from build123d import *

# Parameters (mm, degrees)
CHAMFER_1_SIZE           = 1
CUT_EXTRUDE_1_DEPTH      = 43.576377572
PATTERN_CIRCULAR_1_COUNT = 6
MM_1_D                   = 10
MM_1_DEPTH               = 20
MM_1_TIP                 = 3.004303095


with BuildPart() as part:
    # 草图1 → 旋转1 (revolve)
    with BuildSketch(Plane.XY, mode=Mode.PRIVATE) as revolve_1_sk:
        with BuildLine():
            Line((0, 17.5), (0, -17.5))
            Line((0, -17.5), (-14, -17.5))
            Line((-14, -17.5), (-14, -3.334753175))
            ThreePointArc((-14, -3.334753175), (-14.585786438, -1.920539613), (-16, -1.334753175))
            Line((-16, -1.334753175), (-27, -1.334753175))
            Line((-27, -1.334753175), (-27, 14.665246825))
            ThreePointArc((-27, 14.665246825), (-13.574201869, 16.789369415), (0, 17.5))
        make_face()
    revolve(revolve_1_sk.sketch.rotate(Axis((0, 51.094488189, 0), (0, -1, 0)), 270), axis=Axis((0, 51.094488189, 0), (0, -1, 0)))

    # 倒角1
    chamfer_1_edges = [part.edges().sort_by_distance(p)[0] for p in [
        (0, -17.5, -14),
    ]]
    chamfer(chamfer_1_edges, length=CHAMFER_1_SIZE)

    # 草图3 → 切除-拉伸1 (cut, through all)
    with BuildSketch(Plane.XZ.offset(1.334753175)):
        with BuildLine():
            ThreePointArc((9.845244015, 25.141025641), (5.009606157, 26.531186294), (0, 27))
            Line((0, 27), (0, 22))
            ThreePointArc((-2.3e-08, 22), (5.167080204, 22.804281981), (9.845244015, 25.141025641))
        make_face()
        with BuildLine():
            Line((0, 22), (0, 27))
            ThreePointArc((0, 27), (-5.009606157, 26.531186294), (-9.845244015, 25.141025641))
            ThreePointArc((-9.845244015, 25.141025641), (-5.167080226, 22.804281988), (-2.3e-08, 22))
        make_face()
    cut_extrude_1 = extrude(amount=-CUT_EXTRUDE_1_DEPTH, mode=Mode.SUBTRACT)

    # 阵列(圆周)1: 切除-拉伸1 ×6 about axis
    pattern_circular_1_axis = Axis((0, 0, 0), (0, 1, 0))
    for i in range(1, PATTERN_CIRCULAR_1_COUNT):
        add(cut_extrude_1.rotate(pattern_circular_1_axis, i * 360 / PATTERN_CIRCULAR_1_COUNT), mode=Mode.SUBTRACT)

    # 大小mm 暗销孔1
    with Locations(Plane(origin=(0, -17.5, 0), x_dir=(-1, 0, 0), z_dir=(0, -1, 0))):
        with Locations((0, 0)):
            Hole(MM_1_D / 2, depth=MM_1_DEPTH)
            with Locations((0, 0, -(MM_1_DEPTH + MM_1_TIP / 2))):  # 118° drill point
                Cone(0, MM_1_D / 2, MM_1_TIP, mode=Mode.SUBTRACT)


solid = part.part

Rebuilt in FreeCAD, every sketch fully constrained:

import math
import FreeCAD as App
import Part
import Sketcher
from FreeCAD import Vector
Q = App.Units.Quantity


def edges_at(feature, points):
    """Names of the edges that pass closest to the given points."""
    edges = feature.Shape.Edges
    near = lambda p: min(range(len(edges)), key=lambda i: edges[i].distToShape(Part.Vertex(*p))[0])
    return sorted({f"Edge{near(p) + 1}" for p in points})

doc = App.newDocument("Part")
body = doc.addObject("PartDesign::Body", "Body")

sketch1 = doc.addObject("Sketcher::SketchObject", "Sketch")
body.addObject(sketch1)
sketch1.AttachmentSupport = (doc.XY_Plane, [""])
sketch1.MapMode = "FlatFace"
sketch1.addGeometry([
    Part.LineSegment(Vector(0, -17.5, 0), Vector(0, 17.5, 0)),
    Part.ArcOfCircle(Part.Circle(Vector(0, -112.5, 0), Vector(0, 0, 1), 130), math.radians(90), math.radians(101.99)),
    Part.LineSegment(Vector(-27, 14.7, 0), Vector(-27, -1.3, 0)),
    Part.LineSegment(Vector(-27, -1.3, 0), Vector(-16, -1.3, 0)),
    Part.ArcOfCircle(Part.Circle(Vector(-16, -3.3, 0), Vector(0, 0, 1), 2), math.radians(0), math.radians(90)),
    Part.LineSegment(Vector(-14, -3.3, 0), Vector(-14, -17.5, 0)),
    Part.LineSegment(Vector(-14, -17.5, 0), Vector(0, -17.5, 0)),
], False)
sketch1.addConstraint([
    Sketcher.Constraint("Coincident", 0, 2, 1, 1),
    Sketcher.Constraint("Coincident", 1, 2, 2, 1),
    Sketcher.Constraint("Coincident", 2, 2, 3, 1),
    Sketcher.Constraint("Tangent", 3, 2, 4, 2),
    Sketcher.Constraint("Tangent", 4, 1, 5, 1),
    Sketcher.Constraint("Coincident", 5, 2, 6, 1),
    Sketcher.Constraint("Coincident", 6, 2, 0, 1),
    Sketcher.Constraint("Vertical", 0),
    Sketcher.Constraint("Vertical", 2),
    Sketcher.Constraint("Horizontal", 3),
    Sketcher.Constraint("Vertical", 5),
    Sketcher.Constraint("Horizontal", 6),
    Sketcher.Constraint("Symmetric", 0, 2, 6, 2, -1, 1),
    Sketcher.Constraint("PointOnObject", 1, 3, -2),
    Sketcher.Constraint("Radius", 1, Q("130 mm")),
    Sketcher.Constraint("Radius", 4, Q("2 mm")),
    Sketcher.Constraint("DistanceX", 3, 1, 3, 2, Q("11 mm")),
    Sketcher.Constraint("DistanceX", 6, 1, 6, 2, Q("14 mm")),
    Sketcher.Constraint("DistanceY", 0, 1, 0, 2, Q("35 mm")),
    Sketcher.Constraint("DistanceY", 2, 2, 2, 1, Q("16 mm")),
])
revolution = doc.addObject("PartDesign::Revolution", "Revolution")
body.addObject(revolution)
revolution.Profile = sketch1
revolution.ReferenceAxis = (sketch1, ["V_Axis"])
revolution.Angle = 360
doc.recompute()

chamfer = doc.addObject("PartDesign::Chamfer", "Chamfer")
body.addObject(chamfer)
chamfer.Base = (revolution, edges_at(revolution, [(0, -17.5, -14)]))
chamfer.Size = 1

sketch2 = doc.addObject("Sketcher::SketchObject", "Sketch001")
body.addObject(sketch2)
sketch2.AttachmentSupport = (doc.XZ_Plane, [""])
sketch2.MapMode = "FlatFace"
sketch2.AttachmentOffset = App.Placement(Vector(0, 0, 1.334753), App.Rotation())
sketch2.addGeometry([
    Part.ArcOfCircle(Part.Circle(Vector(0, 0, 0), Vector(0, 0, 1), 27), math.radians(69), math.radians(90)),
    Part.ArcOfCircle(Part.Circle(Vector(0, 0, 0), Vector(0, 0, 1), 27), math.radians(90), math.radians(111)),
    Part.ArcOfCircle(Part.Circle(Vector(0, 39, 0), Vector(0, 0, 1), 17), math.radians(-125), math.radians(-90)),
    Part.ArcOfCircle(Part.Circle(Vector(0, 39, 0), Vector(0, 0, 1), 17), math.radians(-90), math.radians(-55)),
], False)
sketch2.addConstraint([
    Sketcher.Constraint("Tangent", 0, 2, 1, 1),
    Sketcher.Constraint("Coincident", 1, 2, 2, 1),
    Sketcher.Constraint("Tangent", 2, 2, 3, 1),
    Sketcher.Constraint("Coincident", 3, 2, 0, 1),
    Sketcher.Constraint("Coincident", 0, 3, -1, 1),
    Sketcher.Constraint("Equal", 0, 1),
    Sketcher.Constraint("Equal", 2, 3),
    Sketcher.Constraint("PointOnObject", 2, 3, -2),
    Sketcher.Constraint("PointOnObject", 0, 2, -2),
    Sketcher.Constraint("PointOnObject", 2, 2, -2),
    Sketcher.Constraint("Radius", 0, Q("27 mm")),
    Sketcher.Constraint("Radius", 2, Q("17 mm")),
    Sketcher.Constraint("DistanceY", -1, 1, 2, 3, Q("39 mm")),
])
pocket1 = doc.addObject("PartDesign::Pocket", "Pocket")
body.addObject(pocket1)
pocket1.Profile = sketch2
pocket1.Type = "ThroughAll"
doc.recompute()

polarpattern = doc.addObject("PartDesign::PolarPattern", "PolarPattern")
body.addObject(polarpattern)
polarpattern.Originals = [pocket1]
polarpattern.Axis = (doc.Y_Axis, [""])
polarpattern.Angle = 360
polarpattern.Occurrences = 6
body.Tip = polarpattern

sketch3 = doc.addObject("Sketcher::SketchObject", "Sketch002")
body.addObject(sketch3)
sketch3.AttachmentSupport = (doc.XZ_Plane, [""])
sketch3.MapMode = "FlatFace"
sketch3.AttachmentOffset = App.Placement(Vector(0, 0, 17.5), App.Rotation())
sketch3.addGeometry(Part.Circle(Vector(0, 0, 0), Vector(0, 0, 1), 5), False)
sketch3.addConstraint([
    Sketcher.Constraint("Coincident", 0, 3, -1, 1),
    Sketcher.Constraint("Diameter", 0, Q("10 mm")),
])
doc.recompute()
hole = doc.addObject("PartDesign::Hole", "Hole")
body.addObject(hole)
hole.Profile = sketch3
hole.ThreadType = "None"
hole.Diameter = 10
hole.DepthType = "Dimension"
hole.Depth = 20
hole.DrillPoint = "Angled"
hole.DrillPointAngle = 118

doc.recompute()
